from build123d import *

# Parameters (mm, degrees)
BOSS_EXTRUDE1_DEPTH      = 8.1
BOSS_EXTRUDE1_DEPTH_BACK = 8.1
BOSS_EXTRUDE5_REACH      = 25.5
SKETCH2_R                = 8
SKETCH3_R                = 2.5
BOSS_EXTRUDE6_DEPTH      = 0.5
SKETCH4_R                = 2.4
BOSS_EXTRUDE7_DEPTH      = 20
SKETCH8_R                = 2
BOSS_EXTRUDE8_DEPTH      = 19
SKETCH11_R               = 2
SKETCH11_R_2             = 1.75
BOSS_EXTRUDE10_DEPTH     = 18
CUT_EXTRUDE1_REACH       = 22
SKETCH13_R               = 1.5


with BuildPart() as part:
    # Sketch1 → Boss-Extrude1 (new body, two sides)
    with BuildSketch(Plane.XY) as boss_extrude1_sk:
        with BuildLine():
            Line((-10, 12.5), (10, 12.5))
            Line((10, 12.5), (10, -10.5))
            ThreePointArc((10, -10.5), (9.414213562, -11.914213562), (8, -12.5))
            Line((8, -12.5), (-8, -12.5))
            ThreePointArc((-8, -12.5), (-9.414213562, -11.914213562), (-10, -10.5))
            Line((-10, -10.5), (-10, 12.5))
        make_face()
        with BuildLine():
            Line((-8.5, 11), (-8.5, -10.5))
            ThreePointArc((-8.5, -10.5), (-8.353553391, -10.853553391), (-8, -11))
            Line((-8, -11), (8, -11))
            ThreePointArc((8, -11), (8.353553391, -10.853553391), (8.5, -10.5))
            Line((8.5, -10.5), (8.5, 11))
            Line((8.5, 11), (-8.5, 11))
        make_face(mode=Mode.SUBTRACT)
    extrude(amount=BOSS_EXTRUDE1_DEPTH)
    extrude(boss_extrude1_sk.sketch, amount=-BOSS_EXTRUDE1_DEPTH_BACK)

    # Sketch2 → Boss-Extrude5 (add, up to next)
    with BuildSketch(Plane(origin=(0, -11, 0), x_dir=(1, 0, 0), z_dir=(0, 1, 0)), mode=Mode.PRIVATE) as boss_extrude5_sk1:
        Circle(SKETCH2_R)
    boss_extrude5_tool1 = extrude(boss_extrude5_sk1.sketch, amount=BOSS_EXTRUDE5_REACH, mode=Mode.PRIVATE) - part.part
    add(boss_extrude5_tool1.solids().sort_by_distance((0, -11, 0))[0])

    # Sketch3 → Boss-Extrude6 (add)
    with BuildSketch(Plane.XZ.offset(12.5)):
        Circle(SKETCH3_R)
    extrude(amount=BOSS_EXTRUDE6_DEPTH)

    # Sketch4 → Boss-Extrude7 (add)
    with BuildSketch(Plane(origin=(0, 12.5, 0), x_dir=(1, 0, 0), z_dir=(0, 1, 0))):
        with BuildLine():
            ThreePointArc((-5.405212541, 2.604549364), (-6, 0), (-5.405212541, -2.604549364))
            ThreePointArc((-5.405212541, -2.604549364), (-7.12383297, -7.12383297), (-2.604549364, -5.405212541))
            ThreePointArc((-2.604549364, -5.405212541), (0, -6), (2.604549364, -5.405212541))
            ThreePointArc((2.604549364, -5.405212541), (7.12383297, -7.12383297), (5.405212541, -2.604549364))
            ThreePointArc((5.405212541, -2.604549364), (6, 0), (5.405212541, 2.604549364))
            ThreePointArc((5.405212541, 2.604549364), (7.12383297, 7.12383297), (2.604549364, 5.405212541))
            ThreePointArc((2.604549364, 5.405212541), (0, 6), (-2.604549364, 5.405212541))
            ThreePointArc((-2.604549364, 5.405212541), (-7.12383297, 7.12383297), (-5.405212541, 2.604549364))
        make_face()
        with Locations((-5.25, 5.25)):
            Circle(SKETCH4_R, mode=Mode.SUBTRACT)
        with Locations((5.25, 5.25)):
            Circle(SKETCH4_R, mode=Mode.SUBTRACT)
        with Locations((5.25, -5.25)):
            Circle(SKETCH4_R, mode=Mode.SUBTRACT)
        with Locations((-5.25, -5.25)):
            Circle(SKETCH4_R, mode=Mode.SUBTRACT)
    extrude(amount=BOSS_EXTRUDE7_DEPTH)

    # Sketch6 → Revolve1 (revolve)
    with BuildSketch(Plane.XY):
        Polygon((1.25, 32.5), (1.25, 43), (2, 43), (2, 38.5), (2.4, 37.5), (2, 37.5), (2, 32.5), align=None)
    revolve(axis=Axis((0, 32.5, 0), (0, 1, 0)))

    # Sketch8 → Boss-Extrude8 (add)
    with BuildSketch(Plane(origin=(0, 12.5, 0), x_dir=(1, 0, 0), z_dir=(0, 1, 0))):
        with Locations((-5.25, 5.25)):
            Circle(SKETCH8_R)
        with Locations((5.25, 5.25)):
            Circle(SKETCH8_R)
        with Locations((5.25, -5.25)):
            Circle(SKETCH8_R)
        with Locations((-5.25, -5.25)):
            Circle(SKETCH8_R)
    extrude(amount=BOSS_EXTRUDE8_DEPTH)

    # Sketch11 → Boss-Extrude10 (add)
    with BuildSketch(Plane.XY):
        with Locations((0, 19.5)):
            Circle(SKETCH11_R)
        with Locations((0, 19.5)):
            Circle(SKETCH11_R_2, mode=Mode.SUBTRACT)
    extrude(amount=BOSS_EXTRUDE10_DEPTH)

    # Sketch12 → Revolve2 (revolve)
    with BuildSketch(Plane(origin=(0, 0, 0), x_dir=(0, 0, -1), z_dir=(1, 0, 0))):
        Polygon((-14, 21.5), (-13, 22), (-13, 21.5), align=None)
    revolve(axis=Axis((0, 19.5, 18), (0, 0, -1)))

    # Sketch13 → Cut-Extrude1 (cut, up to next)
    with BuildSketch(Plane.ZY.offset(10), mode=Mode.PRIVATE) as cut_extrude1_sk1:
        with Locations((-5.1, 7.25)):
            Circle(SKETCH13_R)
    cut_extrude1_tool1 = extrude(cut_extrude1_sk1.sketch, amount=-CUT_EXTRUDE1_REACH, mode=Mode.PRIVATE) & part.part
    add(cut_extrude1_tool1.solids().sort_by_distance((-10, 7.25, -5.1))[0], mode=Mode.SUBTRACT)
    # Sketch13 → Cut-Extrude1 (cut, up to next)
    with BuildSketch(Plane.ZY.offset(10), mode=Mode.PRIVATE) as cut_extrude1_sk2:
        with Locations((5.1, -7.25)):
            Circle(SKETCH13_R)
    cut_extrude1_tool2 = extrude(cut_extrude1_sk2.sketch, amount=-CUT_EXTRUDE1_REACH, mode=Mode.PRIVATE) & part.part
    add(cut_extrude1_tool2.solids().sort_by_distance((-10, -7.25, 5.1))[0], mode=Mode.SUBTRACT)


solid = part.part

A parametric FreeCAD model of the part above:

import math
import FreeCAD as App
import Part
import Sketcher


def add_polygon(sketch, points):
    """Adds a closed chain of lines whose ends are joined by coincident constraints."""
    first, n = sketch.GeometryCount, len(points)
    for a, b in zip(points, points[1:] + points[:1]):
        sketch.addGeometry(Part.LineSegment(App.Vector(*a, 0), App.Vector(*b, 0)), False)
    for i in range(n):
        sketch.addConstraint(Sketcher.Constraint("Coincident", first + i, 2, first + (i + 1) % n, 1))

doc = App.newDocument("Part")
params = doc.addObject("Spreadsheet::Sheet", "Params")
for row, (alias, value) in enumerate([
    ("sketch1_radius", "2 mm"),
    ("sketch1_radius2", "0.5 mm"),
    ("sketch1_width", "20 mm"),
    ("sketch1_height", "23 mm"),
    ("sketch1_height2", "21.5 mm"),
    ("pad1_length", "8.1 mm"),
    ("pad1_length2", "8.1 mm"),
    ("sketch2_diameter", "16 mm"),
    ("sketch3_diameter", "5 mm"),
    ("pad3_length", "0.5 mm"),
    ("sketch4_radius", "6 mm"),
    ("sketch4_diameter", "4.8 mm"),
    ("sketch4_radius2", "2.65 mm"),
    ("pad4_length", "20 mm"),
    ("sketch5_height", "5 mm"),
    ("sketch5_width", "0.4 mm"),
    ("sketch5_height2", "10.5 mm"),
    ("sketch5_height3", "4.5 mm"),
    ("sketch5_width2", "0.75 mm"),
    ("revolution_angle", "360 deg"),
    ("sketch6_diameter", "4 mm"),
    ("pad5_length", "19 mm"),
    ("sketch7_diameter", "4 mm"),
    ("sketch7_diameter2", "3.5 mm"),
    ("pad6_length", "18 mm"),
    ("sketch8_height", "1 mm"),
    ("sketch8_width", "0.5 mm"),
    ("revolution2_angle", "360 deg"),
    ("sketch9_diameter", "3 mm"),
    ("sketch10_diameter", "3 mm"),
], start=1):
    params.set(f"A{row}", alias)
    params.set(f"B{row}", "=" + value)
    params.setAlias(f"B{row}", alias)

body = doc.addObject("PartDesign::Body", "Body")

# Sketch on XY plane
sketch1 = doc.addObject("Sketcher::SketchObject", "Sketch")
body.addObject(sketch1)
sketch1.AttachmentSupport = (doc.XY_Plane, [""])
sketch1.MapMode = "FlatFace"
sketch1.addGeometry(Part.LineSegment(App.Vector(10, 12.5, 0), App.Vector(-10, 12.5, 0)), False)
sketch1.addGeometry(Part.LineSegment(App.Vector(-10, 12.5, 0), App.Vector(-10, -10.5, 0)), False)
sketch1.addGeometry(Part.ArcOfCircle(Part.Circle(App.Vector(-8, -10.5, 0), App.Vector(0, 0, 1), 2), math.radians(-180), math.radians(-90)), False)
sketch1.addGeometry(Part.LineSegment(App.Vector(-8, -12.5, 0), App.Vector(8, -12.5, 0)), False)
sketch1.addGeometry(Part.ArcOfCircle(Part.Circle(App.Vector(8, -10.5, 0), App.Vector(0, 0, 1), 2), math.radians(-90), math.radians(0)), False)
sketch1.addGeometry(Part.LineSegment(App.Vector(10, -10.5, 0), App.Vector(10, 12.5, 0)), False)
sketch1.addGeometry(Part.LineSegment(App.Vector(-8.5, 11, 0), App.Vector(8.5, 11, 0)), False)
sketch1.addGeometry(Part.LineSegment(App.Vector(8.5, 11, 0), App.Vector(8.5, -10.5, 0)), False)
sketch1.addGeometry(Part.ArcOfCircle(Part.Circle(App.Vector(8, -10.5, 0), App.Vector(0, 0, 1), 0.5), math.radians(-90), math.radians(0)), False)
sketch1.addGeometry(Part.LineSegment(App.Vector(8, -11, 0), App.Vector(-8, -11, 0)), False)
sketch1.addGeometry(Part.ArcOfCircle(Part.Circle(App.Vector(-8, -10.5, 0), App.Vector(0, 0, 1), 0.5), math.radians(180), math.radians(270)), False)
sketch1.addGeometry(Part.LineSegment(App.Vector(-8.5, -10.5, 0), App.Vector(-8.5, 11, 0)), False)
sketch1.addConstraint(Sketcher.Constraint("Coincident", 0, 2, 1, 1))
sketch1.addConstraint(Sketcher.Constraint("Tangent", 1, 2, 2, 1))
sketch1.addConstraint(Sketcher.Constraint("Tangent", 2, 2, 3, 1))
sketch1.addConstraint(Sketcher.Constraint("Tangent", 3, 2, 4, 1))
sketch1.addConstraint(Sketcher.Constraint("Tangent", 4, 2, 5, 1))
sketch1.addConstraint(Sketcher.Constraint("Coincident", 5, 2, 0, 1))
sketch1.addConstraint(Sketcher.Constraint("Coincident", 6, 2, 7, 1))
sketch1.addConstraint(Sketcher.Constraint("Tangent", 7, 2, 8, 2))
sketch1.addConstraint(Sketcher.Constraint("Tangent", 8, 1, 9, 1))
sketch1.addConstraint(Sketcher.Constraint("Tangent", 9, 2, 10, 2))
sketch1.addConstraint(Sketcher.Constraint("Tangent", 10, 1, 11, 1))
sketch1.addConstraint(Sketcher.Constraint("Coincident", 11, 2, 6, 1))
sketch1.addConstraint(Sketcher.Constraint("Horizontal", 0))
sketch1.addConstraint(Sketcher.Constraint("Vertical", 1))
sketch1.addConstraint(Sketcher.Constraint("Horizontal", 3))
sketch1.addConstraint(Sketcher.Constraint("Vertical", 5))
sketch1.addConstraint(Sketcher.Constraint("Horizontal", 6))
sketch1.addConstraint(Sketcher.Constraint("Vertical", 7))
sketch1.addConstraint(Sketcher.Constraint("Horizontal", 9))
sketch1.addConstraint(Sketcher.Constraint("Vertical", 11))
sketch1.addConstraint(Sketcher.Constraint("Coincident", 8, 3, 4, 3))
sketch1.addConstraint(Sketcher.Constraint("Coincident", 10, 3, 2, 3))
sketch1.addConstraint(Sketcher.Constraint("Equal", 2, 4))
sketch1.addConstraint(Sketcher.Constraint("Radius", 2, 2.0))
sketch1.addConstraint(Sketcher.Constraint("Radius", 8, 0.5))
sketch1.addConstraint(Sketcher.Constraint("DistanceX", 0, 2, 0, 1, 20.0))
sketch1.addConstraint(Sketcher.Constraint("DistanceY", 1, 2, 1, 1, 23.0))
sketch1.addConstraint(Sketcher.Constraint("DistanceY", 7, 2, 7, 1, 21.5))
sketch1.addConstraint(Sketcher.Constraint("DistanceX", 2, 3, -1, 1, 8.0))
sketch1.addConstraint(Sketcher.Constraint("DistanceY", -1, 1, 6, 2, 11.0))
sketch1.setExpression("Constraints[23]", "Params.sketch1_radius")
sketch1.setExpression("Constraints[24]", "Params.sketch1_radius2")
sketch1.setExpression("Constraints[25]", "Params.sketch1_width")
sketch1.setExpression("Constraints[26]", "Params.sketch1_height")
sketch1.setExpression("Constraints[27]", "Params.sketch1_height2")
pad1 = doc.addObject("PartDesign::Pad", "Pad")
body.addObject(pad1)
pad1.Profile = sketch1
pad1.Type = "TwoLengths"
pad1.setExpression("Length", "Params.pad1_length")
pad1.setExpression("Length2", "Params.pad1_length2")

# Sketch on XZ plane
sketch2 = doc.addObject("Sketcher::SketchObject", "Sketch001")
body.addObject(sketch2)
sketch2.AttachmentSupport = (doc.XZ_Plane, [""])
sketch2.MapMode = "FlatFace"
sketch2.AttachmentOffset = App.Placement(App.Vector(0, 0, 11), App.Rotation())
sketch2.addGeometry(Part.Circle(App.Vector(0, 0, 0), App.Vector(0, 0, 1), 8), False)
sketch2.addConstraint(Sketcher.Constraint("Coincident", 0, 3, -1, 1))
sketch2.addConstraint(Sketcher.Constraint("Diameter", 0, 16.0))
sketch2.setExpression("Constraints[1]", "Params.sketch2_diameter")
pad2 = doc.addObject("PartDesign::Pad", "Pad001")
body.addObject(pad2)
pad2.Profile = sketch2
pad2.Type = "UpToFirst"
pad2.Reversed = True

# Sketch on XZ plane
sketch3 = doc.addObject("Sketcher::SketchObject", "Sketch002")
body.addObject(sketch3)
sketch3.AttachmentSupport = (doc.XZ_Plane, [""])
sketch3.MapMode = "FlatFace"
sketch3.AttachmentOffset = App.Placement(App.Vector(0, 0, 12.5), App.Rotation())
sketch3.addGeometry(Part.Circle(App.Vector(0, 0, 0), App.Vector(0, 0, 1), 2.5), False)
sketch3.addConstraint(Sketcher.Constraint("Coincident", 0, 3, -1, 1))
sketch3.addConstraint(Sketcher.Constraint("Diameter", 0, 5.0))
sketch3.setExpression("Constraints[1]", "Params.sketch3_diameter")
pad3 = doc.addObject("PartDesign::Pad", "Pad002")
body.addObject(pad3)
pad3.Profile = sketch3
pad3.setExpression("Length", "Params.pad3_length")

# Sketch on XZ plane
sketch4 = doc.addObject("Sketcher::SketchObject", "Sketch003")
body.addObject(sketch4)
sketch4.AttachmentSupport = (doc.XZ_Plane, [""])
sketch4.MapMode = "FlatFace"
sketch4.AttachmentOffset = App.Placement(App.Vector(0, 0, -12.5), App.Rotation())
sketch4.addGeometry(Part.ArcOfCircle(Part.Circle(App.Vector(0, 0, 0), App.Vector(0, 0, 1), 6), math.radians(154.272497), math.radians(205.727503)), False)
sketch4.addGeometry(Part.ArcOfCircle(Part.Circle(App.Vector(-5.25, 5.25, 0), App.Vector(0, 0, 1), 2.65), math.radians(3.35778), math.radians(266.64222)), False)
sketch4.addGeometry(Part.ArcOfCircle(Part.Circle(App.Vector(0, 0, 0), App.Vector(0, 0, 1), 6), math.radians(64.272497), math.radians(115.727503)), False)
sketch4.addGeometry(Part.ArcOfCircle(Part.Circle(App.Vector(5.25, 5.25, 0), App.Vector(0, 0, 1), 2.65), math.radians(-86.64222), math.radians(176.64222)), False)
sketch4.addGeometry(Part.ArcOfCircle(Part.Circle(App.Vector(0, 0, 0), App.Vector(0, 0, 1), 6), math.radians(-25.727503), math.radians(25.727503)), False)
sketch4.addGeometry(Part.ArcOfCircle(Part.Circle(App.Vector(5.25, -5.25, 0), App.Vector(0, 0, 1), 2.65), math.radians(-176.64222), math.radians(86.64222)), False)
sketch4.addGeometry(Part.ArcOfCircle(Part.Circle(App.Vector(0, 0, 0), App.Vector(0, 0, 1), 6), math.radians(-115.727503), math.radians(-64.272497)), False)
sketch4.addGeometry(Part.ArcOfCircle(Part.Circle(App.Vector(-5.25, -5.25, 0), App.Vector(0, 0, 1), 2.65), math.radians(93.35778), math.radians(356.64222)), False)
sketch4.addGeometry(Part.Circle(App.Vector(-5.25, 5.25, 0), App.Vector(0, 0, 1), 2.4), False)
sketch4.addGeometry(Part.Circle(App.Vector(5.25, 5.25, 0), App.Vector(0, 0, 1), 2.4), False)
sketch4.addGeometry(Part.Circle(App.Vector(-5.25, -5.25, 0), App.Vector(0, 0, 1), 2.4), False)
sketch4.addGeometry(Part.Circle(App.Vector(5.25, -5.25, 0), App.Vector(0, 0, 1), 2.4), False)
sketch4.addConstraint(Sketcher.Constraint("Coincident", 0, 1, 1, 2))
sketch4.addConstraint(Sketcher.Constraint("Coincident", 1, 1, 2, 2))
sketch4.addConstraint(Sketcher.Constraint("Coincident", 2, 1, 3, 2))
sketch4.addConstraint(Sketcher.Constraint("Coincident", 3, 1, 4, 2))
sketch4.addConstraint(Sketcher.Constraint("Coincident", 4, 1, 5, 2))
sketch4.addConstraint(Sketcher.Constraint("Coincident", 5, 1, 6, 2))
sketch4.addConstraint(Sketcher.Constraint("Coincident", 6, 1, 7, 2))
sketch4.addConstraint(Sketcher.Constraint("Coincident", 7, 1, 0, 2))
sketch4.addConstraint(Sketcher.Constraint("Coincident", 0, 3, -1, 1))
sketch4.addConstraint(Sketcher.Constraint("Coincident", 2, 3, -1, 1))
sketch4.addConstraint(Sketcher.Constraint("Coincident", 4, 3, -1, 1))
sketch4.addConstraint(Sketcher.Constraint("Coincident", 6, 3, -1, 1))
sketch4.addConstraint(Sketcher.Constraint("Coincident", 8, 3, 1, 3))
sketch4.addConstraint(Sketcher.Constraint("Coincident", 9, 3, 3, 3))
sketch4.addConstraint(Sketcher.Constraint("Coincident", 10, 3, 7, 3))
sketch4.addConstraint(Sketcher.Constraint("Coincident", 11, 3, 5, 3))
sketch4.addConstraint(Sketcher.Constraint("Equal", 0, 2))
sketch4.addConstraint(Sketcher.Constraint("Equal", 1, 3))
sketch4.addConstraint(Sketcher.Constraint("Equal", 2, 4))
sketch4.addConstraint(Sketcher.Constraint("Equal", 3, 5))
sketch4.addConstraint(Sketcher.Constraint("Equal", 4, 6))
sketch4.addConstraint(Sketcher.Constraint("Equal", 5, 7))
sketch4.addConstraint(Sketcher.Constraint("Equal", 8, 9))
sketch4.addConstraint(Sketcher.Constraint("Equal", 9, 10))
sketch4.addConstraint(Sketcher.Constraint("Equal", 10, 11))
sketch4.addConstraint(Sketcher.Constraint("Symmetric", 1, 3, 5, 3, -1, 1))
sketch4.addConstraint(Sketcher.Constraint("Symmetric", 3, 3, 7, 3, -1, 1))
sketch4.addConstraint(Sketcher.Constraint("Symmetric", 1, 3, 3, 3, -2))
sketch4.addConstraint(Sketcher.Constraint("Radius", 0, 6.0))
sketch4.addConstraint(Sketcher.Constraint("Diameter", 8, 4.8))
sketch4.addConstraint(Sketcher.Constraint("Radius", 1, 2.65))
sketch4.addConstraint(Sketcher.Constraint("DistanceX", 1, 3, 3, 3, 10.5))
sketch4.addConstraint(Sketcher.Constraint("DistanceY", 5, 3, 3, 3, 10.5))
sketch4.setExpression("Constraints[28]", "Params.sketch4_radius")
sketch4.setExpression("Constraints[29]", "Params.sketch4_diameter")
sketch4.setExpression("Constraints[30]", "Params.sketch4_radius2")
pad4 = doc.addObject("PartDesign::Pad", "Pad003")
body.addObject(pad4)
pad4.Profile = sketch4
pad4.setExpression("Length", "Params.pad4_length")
pad4.Reversed = True

# Sketch on XY plane
sketch5 = doc.addObject("Sketcher::SketchObject", "Sketch004")
body.addObject(sketch5)
sketch5.AttachmentSupport = (doc.XY_Plane, [""])
sketch5.MapMode = "FlatFace"
add_polygon(sketch5, [(1.25, 43), (1.25, 32.5), (2, 32.5), (2, 37.5), (2.4, 37.5), (2, 38.5), (2, 43)])  # lines 0-6
sketch5.addConstraint(Sketcher.Constraint("Vertical", 0))
sketch5.addConstraint(Sketcher.Constraint("Horizontal", 1))
sketch5.addConstraint(Sketcher.Constraint("Vertical", 2))
sketch5.addConstraint(Sketcher.Constraint("Horizontal", 3))
sketch5.addConstraint(Sketcher.Constraint("Vertical", 5))
sketch5.addConstraint(Sketcher.Constraint("Horizontal", 6))
sketch5.addConstraint(Sketcher.Constraint("Vertical", 2, 2, 4, 2))
sketch5.addConstraint(Sketcher.Constraint("DistanceY", 2, 1, 2, 2, 5.0))
sketch5.addConstraint(Sketcher.Constraint("DistanceX", 3, 1, 3, 2, 0.4))
sketch5.addConstraint(Sketcher.Constraint("DistanceY", 0, 2, 0, 1, 10.5))
sketch5.addConstraint(Sketcher.Constraint("DistanceY", 5, 1, 5, 2, 4.5))
sketch5.addConstraint(Sketcher.Constraint("DistanceX", -1, 1, 1, 2, 2.0))
sketch5.addConstraint(Sketcher.Constraint("DistanceY", -1, 1, 5, 2, 43.0))
sketch5.addConstraint(Sketcher.Constraint("DistanceX", 1, 1, 1, 2, 0.75))
sketch5.setExpression("Constraints[14]", "Params.sketch5_height")
sketch5.setExpression("Constraints[15]", "Params.sketch5_width")
sketch5.setExpression("Constraints[16]", "Params.sketch5_height2")
sketch5.setExpression("Constraints[17]", "Params.sketch5_height3")
sketch5.setExpression("Constraints[20]", "Params.sketch5_width2")
revolution = doc.addObject("PartDesign::Revolution", "Revolution")
body.addObject(revolution)
revolution.Profile = sketch5
revolution.ReferenceAxis = (sketch5, ["V_Axis"])
revolution.setExpression("Angle", "Params.revolution_angle")

# Sketch on XZ plane
sketch6 = doc.addObject("Sketcher::SketchObject", "Sketch005")
body.addObject(sketch6)
sketch6.AttachmentSupport = (doc.XZ_Plane, [""])
sketch6.MapMode = "FlatFace"
sketch6.AttachmentOffset = App.Placement(App.Vector(0, 0, -12.5), App.Rotation())
sketch6.addGeometry(Part.Circle(App.Vector(-5.25, -5.25, 0), App.Vector(0, 0, 1), 2), False)
sketch6.addGeometry(Part.Circle(App.Vector(5.25, -5.25, 0), App.Vector(0, 0, 1), 2), False)
sketch6.addGeometry(Part.Circle(App.Vector(5.25, 5.25, 0), App.Vector(0, 0, 1), 2), False)
sketch6.addGeometry(Part.Circle(App.Vector(-5.25, 5.25, 0), App.Vector(0, 0, 1), 2), False)
sketch6.addConstraint(Sketcher.Constraint("Equal", 0, 1))
sketch6.addConstraint(Sketcher.Constraint("Equal", 1, 2))
sketch6.addConstraint(Sketcher.Constraint("Equal", 2, 3))
sketch6.addConstraint(Sketcher.Constraint("Symmetric", 0, 3, 2, 3, -1, 1))
sketch6.addConstraint(Sketcher.Constraint("Symmetric", 1, 3, 3, 3, -1, 1))
sketch6.addConstraint(Sketcher.Constraint("Symmetric", 0, 3, 1, 3, -2))
sketch6.addConstraint(Sketcher.Constraint("Diameter", 0, 4.0))
sketch6.addConstraint(Sketcher.Constraint("DistanceX", 0, 3, 1, 3, 10.5))
sketch6.addConstraint(Sketcher.Constraint("DistanceY", 1, 3, 2, 3, 10.5))
sketch6.setExpression("Constraints[6]", "Params.sketch6_diameter")
pad5 = doc.addObject("PartDesign::Pad", "Pad004")
body.addObject(pad5)
pad5.Profile = sketch6
pad5.setExpression("Length", "Params.pad5_length")
pad5.Reversed = True

# Sketch on XY plane
sketch7 = doc.addObject("Sketcher::SketchObject", "Sketch006")
body.addObject(sketch7)
sketch7.AttachmentSupport = (doc.XY_Plane, [""])
sketch7.MapMode = "FlatFace"
sketch7.addGeometry(Part.Circle(App.Vector(0, 19.5, 0), App.Vector(0, 0, 1), 2), False)
sketch7.addGeometry(Part.Circle(App.Vector(0, 19.5, 0), App.Vector(0, 0, 1), 1.75), False)
sketch7.addConstraint(Sketcher.Constraint("Coincident", 1, 3, 0, 3))
sketch7.addConstraint(Sketcher.Constraint("PointOnObject", 0, 3, -2))
sketch7.addConstraint(Sketcher.Constraint("Diameter", 0, 4.0))
sketch7.addConstraint(Sketcher.Constraint("Diameter", 1, 3.5))
sketch7.addConstraint(Sketcher.Constraint("DistanceY", -1, 1, 0, 3, 19.5))
sketch7.setExpression("Constraints[2]", "Params.sketch7_diameter")
sketch7.setExpression("Constraints[3]", "Params.sketch7_diameter2")
pad6 = doc.addObject("PartDesign::Pad", "Pad005")
body.addObject(pad6)
pad6.Profile = sketch7
pad6.setExpression("Length", "Params.pad6_length")

# Sketch on YZ plane
sketch8 = doc.addObject("Sketcher::SketchObject", "Sketch007")
body.addObject(sketch8)
sketch8.AttachmentSupport = (doc.YZ_Plane, [""])
sketch8.MapMode = "FlatFace"
add_polygon(sketch8, [(22, 13), (21.5, 14), (21.5, 13)])  # lines 0-2
sketch8.addGeometry(Part.LineSegment(App.Vector(19.5, 14, 0), App.Vector(19.5, 13, 0)), True)  # axis
sketch8.addConstraint(Sketcher.Constraint("Vertical", 1))
sketch8.addConstraint(Sketcher.Constraint("Horizontal", 2))
sketch8.addConstraint(Sketcher.Constraint("Vertical", 3))
sketch8.addConstraint(Sketcher.Constraint("Horizontal", 0, 2, 3, 1))
sketch8.addConstraint(Sketcher.Constraint("Horizontal", 2, 2, 3, 2))
sketch8.addConstraint(Sketcher.Constraint("DistanceY", 1, 2, 1, 1, 1.0))
sketch8.addConstraint(Sketcher.Constraint("DistanceX", 2, 1, 2, 2, 0.5))
sketch8.addConstraint(Sketcher.Constraint("DistanceY", -1, 1, 0, 2, 14.0))
sketch8.addConstraint(Sketcher.Constraint("DistanceX", -1, 1, 2, 2, 22.0))
sketch8.addConstraint(Sketcher.Constraint("DistanceX", 3, 1, 0, 2, 2.0))
sketch8.setExpression("Constraints[8]", "Params.sketch8_height")
sketch8.setExpression("Constraints[9]", "Params.sketch8_width")
revolution2 = doc.addObject("PartDesign::Revolution", "Revolution001")
body.addObject(revolution2)
revolution2.Profile = sketch8
revolution2.ReferenceAxis = (sketch8, ["Axis0"])
revolution2.setExpression("Angle", "Params.revolution2_angle")

# Sketch on YZ plane
sketch9 = doc.addObject("Sketcher::SketchObject", "Sketch008")
body.addObject(sketch9)
sketch9.AttachmentSupport = (doc.YZ_Plane, [""])
sketch9.MapMode = "FlatFace"
sketch9.AttachmentOffset = App.Placement(App.Vector(0, 0, -10), App.Rotation())
sketch9.addGeometry(Part.Circle(App.Vector(7.25, -5.1, 0), App.Vector(0, 0, 1), 1.5), False)
sketch9.addConstraint(Sketcher.Constraint("Diameter", 0, 3.0))
sketch9.addConstraint(Sketcher.Constraint("DistanceY", 0, 3, -1, 1, 5.1))
sketch9.addConstraint(Sketcher.Constraint("DistanceX", -1, 1, 0, 3, 7.25))
sketch9.setExpression("Constraints[0]", "Params.sketch9_diameter")
pocket1 = doc.addObject("PartDesign::Pocket", "Pocket")
body.addObject(pocket1)
pocket1.Profile = sketch9
pocket1.Type = "UpToFirst"
pocket1.Reversed = True

# Sketch on YZ plane
sketch10 = doc.addObject("Sketcher::SketchObject", "Sketch009")
body.addObject(sketch10)
sketch10.AttachmentSupport = (doc.YZ_Plane, [""])
sketch10.MapMode = "FlatFace"
sketch10.AttachmentOffset = App.Placement(App.Vector(0, 0, -10), App.Rotation())
sketch10.addGeometry(Part.Circle(App.Vector(-7.25, 5.1, 0), App.Vector(0, 0, 1), 1.5), False)
sketch10.addConstraint(Sketcher.Constraint("Diameter", 0, 3.0))
sketch10.addConstraint(Sketcher.Constraint("DistanceY", -1, 1, 0, 3, 5.1))
sketch10.addConstraint(Sketcher.Constraint("DistanceX", 0, 3, -1, 1, 7.25))
sketch10.setExpression("Constraints[0]", "Params.sketch10_diameter")
pocket2 = doc.addObject("PartDesign::Pocket", "Pocket001")
body.addObject(pocket2)
pocket2.Profile = sketch10
pocket2.Type = "UpToFirst"
pocket2.Reversed = True

doc.recompute()
